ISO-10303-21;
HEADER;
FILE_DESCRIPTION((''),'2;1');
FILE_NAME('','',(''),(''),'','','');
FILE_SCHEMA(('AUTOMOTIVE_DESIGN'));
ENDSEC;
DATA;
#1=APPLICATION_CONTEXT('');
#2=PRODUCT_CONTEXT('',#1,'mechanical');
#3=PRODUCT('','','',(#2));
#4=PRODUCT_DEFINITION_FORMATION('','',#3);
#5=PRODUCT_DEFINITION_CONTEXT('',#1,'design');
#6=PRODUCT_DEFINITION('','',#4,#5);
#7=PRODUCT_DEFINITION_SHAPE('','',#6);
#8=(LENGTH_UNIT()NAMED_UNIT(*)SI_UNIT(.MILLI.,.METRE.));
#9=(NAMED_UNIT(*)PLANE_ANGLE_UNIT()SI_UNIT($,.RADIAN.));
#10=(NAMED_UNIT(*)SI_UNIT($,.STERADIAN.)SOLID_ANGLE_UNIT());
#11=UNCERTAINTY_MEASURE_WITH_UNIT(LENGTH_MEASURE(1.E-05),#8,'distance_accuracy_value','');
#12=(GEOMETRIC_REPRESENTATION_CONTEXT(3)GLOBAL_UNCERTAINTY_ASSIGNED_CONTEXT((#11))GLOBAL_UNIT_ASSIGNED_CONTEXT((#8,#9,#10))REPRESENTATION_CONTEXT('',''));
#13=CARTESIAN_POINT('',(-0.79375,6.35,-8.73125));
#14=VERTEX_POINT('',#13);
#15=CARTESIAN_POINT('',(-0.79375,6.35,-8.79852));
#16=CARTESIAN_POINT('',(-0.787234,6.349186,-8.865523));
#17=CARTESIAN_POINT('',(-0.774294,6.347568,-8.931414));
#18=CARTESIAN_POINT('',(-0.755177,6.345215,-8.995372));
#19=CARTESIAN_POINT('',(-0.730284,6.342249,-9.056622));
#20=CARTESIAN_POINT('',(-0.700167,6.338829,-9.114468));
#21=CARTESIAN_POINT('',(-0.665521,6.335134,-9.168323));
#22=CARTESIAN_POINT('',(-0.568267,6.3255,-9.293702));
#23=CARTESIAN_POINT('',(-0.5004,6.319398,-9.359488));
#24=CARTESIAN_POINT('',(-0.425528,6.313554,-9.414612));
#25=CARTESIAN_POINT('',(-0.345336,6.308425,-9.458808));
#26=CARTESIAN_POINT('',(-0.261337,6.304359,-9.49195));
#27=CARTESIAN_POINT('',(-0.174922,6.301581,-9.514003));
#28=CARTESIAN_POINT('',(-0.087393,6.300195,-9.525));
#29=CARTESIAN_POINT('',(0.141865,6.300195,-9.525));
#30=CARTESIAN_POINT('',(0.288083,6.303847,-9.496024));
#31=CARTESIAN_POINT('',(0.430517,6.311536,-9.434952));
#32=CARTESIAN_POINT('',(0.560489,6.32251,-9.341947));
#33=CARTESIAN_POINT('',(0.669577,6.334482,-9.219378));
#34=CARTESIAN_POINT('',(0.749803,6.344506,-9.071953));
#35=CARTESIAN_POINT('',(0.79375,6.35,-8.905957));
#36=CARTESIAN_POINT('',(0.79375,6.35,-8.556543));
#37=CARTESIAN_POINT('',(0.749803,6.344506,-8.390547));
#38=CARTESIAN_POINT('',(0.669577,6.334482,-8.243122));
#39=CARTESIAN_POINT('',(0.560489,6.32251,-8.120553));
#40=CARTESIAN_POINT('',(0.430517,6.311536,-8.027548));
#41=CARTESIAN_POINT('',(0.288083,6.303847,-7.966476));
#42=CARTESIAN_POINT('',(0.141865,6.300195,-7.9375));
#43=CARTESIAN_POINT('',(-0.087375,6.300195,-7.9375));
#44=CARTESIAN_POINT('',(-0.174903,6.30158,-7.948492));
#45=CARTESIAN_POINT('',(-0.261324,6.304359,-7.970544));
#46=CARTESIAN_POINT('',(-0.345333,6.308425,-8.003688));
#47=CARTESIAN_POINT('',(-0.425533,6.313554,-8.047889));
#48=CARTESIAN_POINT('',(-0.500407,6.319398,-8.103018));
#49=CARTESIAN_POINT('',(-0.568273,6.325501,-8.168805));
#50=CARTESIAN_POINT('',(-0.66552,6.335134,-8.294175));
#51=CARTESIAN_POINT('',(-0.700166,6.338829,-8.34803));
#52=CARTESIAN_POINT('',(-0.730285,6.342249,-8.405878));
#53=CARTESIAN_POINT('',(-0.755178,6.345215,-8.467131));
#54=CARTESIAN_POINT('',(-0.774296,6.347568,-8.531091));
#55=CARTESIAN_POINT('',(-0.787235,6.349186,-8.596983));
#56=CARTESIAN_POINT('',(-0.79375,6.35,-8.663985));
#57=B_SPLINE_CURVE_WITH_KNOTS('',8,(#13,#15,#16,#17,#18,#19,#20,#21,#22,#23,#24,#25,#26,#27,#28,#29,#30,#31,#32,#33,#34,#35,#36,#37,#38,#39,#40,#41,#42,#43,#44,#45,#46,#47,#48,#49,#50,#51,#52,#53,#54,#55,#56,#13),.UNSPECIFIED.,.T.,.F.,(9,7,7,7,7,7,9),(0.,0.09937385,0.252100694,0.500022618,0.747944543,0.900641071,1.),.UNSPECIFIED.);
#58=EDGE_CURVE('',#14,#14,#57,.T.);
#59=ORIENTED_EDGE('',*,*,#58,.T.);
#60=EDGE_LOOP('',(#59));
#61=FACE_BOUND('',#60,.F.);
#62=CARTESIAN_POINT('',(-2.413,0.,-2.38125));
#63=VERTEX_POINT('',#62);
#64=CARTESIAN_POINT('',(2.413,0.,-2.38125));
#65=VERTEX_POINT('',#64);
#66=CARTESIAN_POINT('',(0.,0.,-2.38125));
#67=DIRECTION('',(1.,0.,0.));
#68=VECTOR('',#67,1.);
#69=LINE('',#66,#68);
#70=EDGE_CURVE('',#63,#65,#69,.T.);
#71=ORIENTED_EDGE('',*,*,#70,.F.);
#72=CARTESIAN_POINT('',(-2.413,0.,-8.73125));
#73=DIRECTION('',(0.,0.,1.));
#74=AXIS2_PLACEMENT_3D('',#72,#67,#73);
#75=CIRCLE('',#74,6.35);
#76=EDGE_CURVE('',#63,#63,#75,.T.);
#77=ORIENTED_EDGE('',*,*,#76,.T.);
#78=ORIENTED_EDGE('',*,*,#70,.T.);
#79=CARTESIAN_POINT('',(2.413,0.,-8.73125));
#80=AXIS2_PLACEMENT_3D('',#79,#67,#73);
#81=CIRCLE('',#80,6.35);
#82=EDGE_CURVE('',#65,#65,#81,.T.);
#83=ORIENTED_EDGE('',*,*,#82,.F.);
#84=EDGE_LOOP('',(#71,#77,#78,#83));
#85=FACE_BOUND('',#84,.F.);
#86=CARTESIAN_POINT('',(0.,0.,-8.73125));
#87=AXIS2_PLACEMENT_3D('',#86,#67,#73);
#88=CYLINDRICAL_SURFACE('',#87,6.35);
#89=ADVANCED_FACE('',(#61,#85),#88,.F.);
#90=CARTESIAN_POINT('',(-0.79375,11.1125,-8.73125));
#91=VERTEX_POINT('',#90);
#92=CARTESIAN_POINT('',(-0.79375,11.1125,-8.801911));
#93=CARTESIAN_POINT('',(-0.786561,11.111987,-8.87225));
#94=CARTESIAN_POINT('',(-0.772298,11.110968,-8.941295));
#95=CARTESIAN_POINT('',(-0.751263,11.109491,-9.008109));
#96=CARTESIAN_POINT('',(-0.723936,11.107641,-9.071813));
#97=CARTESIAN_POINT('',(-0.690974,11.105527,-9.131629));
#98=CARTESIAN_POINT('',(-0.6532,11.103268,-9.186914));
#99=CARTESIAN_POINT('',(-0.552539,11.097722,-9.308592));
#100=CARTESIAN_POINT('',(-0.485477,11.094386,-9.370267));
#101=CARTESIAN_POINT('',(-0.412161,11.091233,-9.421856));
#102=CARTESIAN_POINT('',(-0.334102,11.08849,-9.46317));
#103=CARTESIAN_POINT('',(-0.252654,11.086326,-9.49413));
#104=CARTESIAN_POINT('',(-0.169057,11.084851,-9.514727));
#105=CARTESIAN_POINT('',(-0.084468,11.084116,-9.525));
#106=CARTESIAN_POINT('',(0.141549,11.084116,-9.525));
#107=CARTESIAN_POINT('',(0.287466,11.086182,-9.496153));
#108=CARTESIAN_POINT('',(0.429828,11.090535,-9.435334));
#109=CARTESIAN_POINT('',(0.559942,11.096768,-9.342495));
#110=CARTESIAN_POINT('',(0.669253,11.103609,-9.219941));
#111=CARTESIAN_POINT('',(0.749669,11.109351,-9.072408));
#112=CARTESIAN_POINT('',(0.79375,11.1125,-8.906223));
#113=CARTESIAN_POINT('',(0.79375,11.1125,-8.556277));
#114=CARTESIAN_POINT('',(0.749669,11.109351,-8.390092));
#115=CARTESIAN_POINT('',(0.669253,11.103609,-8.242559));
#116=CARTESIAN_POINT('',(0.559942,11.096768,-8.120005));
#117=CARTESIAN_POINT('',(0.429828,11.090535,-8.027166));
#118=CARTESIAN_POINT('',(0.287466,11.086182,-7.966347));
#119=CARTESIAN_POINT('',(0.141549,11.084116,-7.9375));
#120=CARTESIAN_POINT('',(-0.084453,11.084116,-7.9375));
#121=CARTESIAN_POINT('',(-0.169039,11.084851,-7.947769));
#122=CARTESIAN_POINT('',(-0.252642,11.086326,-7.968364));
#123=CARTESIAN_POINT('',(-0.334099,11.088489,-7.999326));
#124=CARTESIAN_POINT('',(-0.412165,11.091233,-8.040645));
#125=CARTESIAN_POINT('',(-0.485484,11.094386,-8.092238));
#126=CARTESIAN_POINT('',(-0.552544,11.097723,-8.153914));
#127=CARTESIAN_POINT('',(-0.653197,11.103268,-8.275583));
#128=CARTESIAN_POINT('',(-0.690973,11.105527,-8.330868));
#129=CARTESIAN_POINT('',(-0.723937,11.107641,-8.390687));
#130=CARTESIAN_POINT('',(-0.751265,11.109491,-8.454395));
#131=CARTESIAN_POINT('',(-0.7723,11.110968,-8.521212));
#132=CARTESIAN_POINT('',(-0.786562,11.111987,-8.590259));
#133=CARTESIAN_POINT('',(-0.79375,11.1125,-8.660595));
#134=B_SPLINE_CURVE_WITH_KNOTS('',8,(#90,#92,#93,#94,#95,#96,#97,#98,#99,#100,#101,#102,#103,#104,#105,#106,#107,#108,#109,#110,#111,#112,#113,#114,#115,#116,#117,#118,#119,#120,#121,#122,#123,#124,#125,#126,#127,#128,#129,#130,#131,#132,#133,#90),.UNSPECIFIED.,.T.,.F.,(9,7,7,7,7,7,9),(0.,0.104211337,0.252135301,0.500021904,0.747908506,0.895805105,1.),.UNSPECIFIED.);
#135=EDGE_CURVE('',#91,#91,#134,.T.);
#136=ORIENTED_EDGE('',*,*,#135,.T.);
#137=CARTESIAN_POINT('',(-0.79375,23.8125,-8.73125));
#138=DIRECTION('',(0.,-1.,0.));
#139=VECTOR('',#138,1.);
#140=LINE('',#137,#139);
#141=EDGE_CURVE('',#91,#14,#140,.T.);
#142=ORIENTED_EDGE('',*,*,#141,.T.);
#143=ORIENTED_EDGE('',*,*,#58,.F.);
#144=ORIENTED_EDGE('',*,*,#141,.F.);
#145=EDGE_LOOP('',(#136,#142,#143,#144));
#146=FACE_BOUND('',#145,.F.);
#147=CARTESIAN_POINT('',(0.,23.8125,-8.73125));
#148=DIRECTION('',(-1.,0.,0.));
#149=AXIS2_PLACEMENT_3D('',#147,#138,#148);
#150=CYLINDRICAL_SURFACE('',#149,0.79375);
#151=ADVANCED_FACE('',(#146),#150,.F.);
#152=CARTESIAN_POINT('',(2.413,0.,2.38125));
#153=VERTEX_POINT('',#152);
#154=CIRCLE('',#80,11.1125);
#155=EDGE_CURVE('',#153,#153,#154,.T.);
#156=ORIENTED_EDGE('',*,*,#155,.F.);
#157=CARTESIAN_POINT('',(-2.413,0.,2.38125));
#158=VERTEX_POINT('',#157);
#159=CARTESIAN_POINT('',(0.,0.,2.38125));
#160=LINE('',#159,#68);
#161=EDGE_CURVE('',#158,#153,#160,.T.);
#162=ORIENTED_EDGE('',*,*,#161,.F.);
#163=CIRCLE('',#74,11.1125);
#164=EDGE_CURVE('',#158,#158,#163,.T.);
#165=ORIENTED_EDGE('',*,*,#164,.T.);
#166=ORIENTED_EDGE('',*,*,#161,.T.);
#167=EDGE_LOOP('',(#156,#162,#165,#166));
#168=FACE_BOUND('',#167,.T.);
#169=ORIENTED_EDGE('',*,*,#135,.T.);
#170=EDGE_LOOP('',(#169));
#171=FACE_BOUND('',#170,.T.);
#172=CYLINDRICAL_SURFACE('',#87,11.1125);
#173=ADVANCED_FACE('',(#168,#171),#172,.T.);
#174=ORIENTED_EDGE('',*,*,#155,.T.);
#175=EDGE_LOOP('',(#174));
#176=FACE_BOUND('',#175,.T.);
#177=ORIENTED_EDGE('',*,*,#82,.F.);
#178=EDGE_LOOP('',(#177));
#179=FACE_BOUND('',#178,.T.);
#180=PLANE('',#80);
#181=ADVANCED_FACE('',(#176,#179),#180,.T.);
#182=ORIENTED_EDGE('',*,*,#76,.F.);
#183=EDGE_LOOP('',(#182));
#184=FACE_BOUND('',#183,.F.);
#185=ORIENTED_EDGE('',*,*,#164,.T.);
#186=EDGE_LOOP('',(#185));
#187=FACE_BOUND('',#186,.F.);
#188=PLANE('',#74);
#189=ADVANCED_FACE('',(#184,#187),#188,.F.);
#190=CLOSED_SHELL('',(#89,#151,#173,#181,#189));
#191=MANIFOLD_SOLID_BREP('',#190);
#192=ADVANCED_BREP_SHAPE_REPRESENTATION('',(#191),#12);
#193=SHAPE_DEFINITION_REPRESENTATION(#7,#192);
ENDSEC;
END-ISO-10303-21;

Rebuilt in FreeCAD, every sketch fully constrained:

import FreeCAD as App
import Part
import Sketcher
Q = App.Units.Quantity


def add_polygon(sketch, points):
    """Adds a closed chain of lines whose ends are joined by coincident constraints."""
    first, n = sketch.GeometryCount, len(points)
    for a, b in zip(points, points[1:] + points[:1]):
        sketch.addGeometry(Part.LineSegment(App.Vector(*a, 0), App.Vector(*b, 0)), False)
    for i in range(n):
        sketch.addConstraint(Sketcher.Constraint("Coincident", first + i, 2, first + (i + 1) % n, 1))

doc = App.newDocument("Part")
body = doc.addObject("PartDesign::Body", "Body")

sketch1 = body.newObject("Sketcher::SketchObject", "Sketch")
sketch1.AttachmentSupport = (doc.getObject("XZ_Plane"), [""])
sketch1.MapMode = "FlatFace"
add_polygon(sketch1, [(-2.4, -2.4), (-2.4, 2.4), (2.4, 2.4), (2.4, -2.4)])
sketch1.addGeometry(Part.LineSegment(App.Vector(-2.4, -8.7, 0), App.Vector(2.4, -8.7, 0)), True)
sketch1.addConstraint(Sketcher.Constraint("Vertical", 0))
sketch1.addConstraint(Sketcher.Constraint("Horizontal", 1))
sketch1.addConstraint(Sketcher.Constraint("Vertical", 2))
sketch1.addConstraint(Sketcher.Constraint("Horizontal", 3))
sketch1.addConstraint(Sketcher.Constraint("Horizontal", 4))
sketch1.addConstraint(Sketcher.Constraint("Symmetric", 0, 2, 2, 2, -1, 1))
sketch1.addConstraint(Sketcher.Constraint("Vertical", 3, 2, 4, 1))
sketch1.addConstraint(Sketcher.Constraint("Vertical", 2, 2, 4, 2))
sketch1.addConstraint(Sketcher.Constraint("DistanceX", 1, 1, 1, 2, Q("0.19 in")))
sketch1.addConstraint(Sketcher.Constraint("DistanceY", 0, 1, 0, 2, Q("0.1875 in")))
sketch1.addConstraint(Sketcher.Constraint("DistanceY", 4, 1, 3, 2, Q("0.25 in")))
revolution = body.newObject("PartDesign::Revolution", "Revolution")
revolution.Profile = sketch1
revolution.ReferenceAxis = (sketch1, ["Axis0"])
revolution.Angle = 360

sketch2 = body.newObject("Sketcher::SketchObject", "Sketch001")
sketch2.AttachmentSupport = (doc.getObject("XZ_Plane"), [""])
sketch2.MapMode = "FlatFace"
sketch2.AttachmentOffset = App.Placement(App.Vector(0, 0, -0.4375 * 25.4), App.Rotation())
sketch2.addGeometry(Part.Circle(App.Vector(0, -8.7, 0), App.Vector(0, 0, 1), 0.8), False)
sketch2.addConstraint(Sketcher.Constraint("PointOnObject", 0, 3, -2))
sketch2.addConstraint(Sketcher.Constraint("Diameter", 0, Q("0.0625 in")))
sketch2.addConstraint(Sketcher.Constraint("DistanceY", 0, 3, -1, 1, Q("0.34375 in")))
doc.recompute()
hole = body.newObject("PartDesign::Hole", "Hole")
hole.Profile = sketch2
hole.ThreadType = "None"
hole.Diameter = Q("0.0625 in")
hole.DepthType = "Dimension"
hole.Depth = Q("0.5 in")
hole.DrillPoint = "Angled"
hole.DrillPointAngle = 118
hole.Reversed = True

doc.recompute()
